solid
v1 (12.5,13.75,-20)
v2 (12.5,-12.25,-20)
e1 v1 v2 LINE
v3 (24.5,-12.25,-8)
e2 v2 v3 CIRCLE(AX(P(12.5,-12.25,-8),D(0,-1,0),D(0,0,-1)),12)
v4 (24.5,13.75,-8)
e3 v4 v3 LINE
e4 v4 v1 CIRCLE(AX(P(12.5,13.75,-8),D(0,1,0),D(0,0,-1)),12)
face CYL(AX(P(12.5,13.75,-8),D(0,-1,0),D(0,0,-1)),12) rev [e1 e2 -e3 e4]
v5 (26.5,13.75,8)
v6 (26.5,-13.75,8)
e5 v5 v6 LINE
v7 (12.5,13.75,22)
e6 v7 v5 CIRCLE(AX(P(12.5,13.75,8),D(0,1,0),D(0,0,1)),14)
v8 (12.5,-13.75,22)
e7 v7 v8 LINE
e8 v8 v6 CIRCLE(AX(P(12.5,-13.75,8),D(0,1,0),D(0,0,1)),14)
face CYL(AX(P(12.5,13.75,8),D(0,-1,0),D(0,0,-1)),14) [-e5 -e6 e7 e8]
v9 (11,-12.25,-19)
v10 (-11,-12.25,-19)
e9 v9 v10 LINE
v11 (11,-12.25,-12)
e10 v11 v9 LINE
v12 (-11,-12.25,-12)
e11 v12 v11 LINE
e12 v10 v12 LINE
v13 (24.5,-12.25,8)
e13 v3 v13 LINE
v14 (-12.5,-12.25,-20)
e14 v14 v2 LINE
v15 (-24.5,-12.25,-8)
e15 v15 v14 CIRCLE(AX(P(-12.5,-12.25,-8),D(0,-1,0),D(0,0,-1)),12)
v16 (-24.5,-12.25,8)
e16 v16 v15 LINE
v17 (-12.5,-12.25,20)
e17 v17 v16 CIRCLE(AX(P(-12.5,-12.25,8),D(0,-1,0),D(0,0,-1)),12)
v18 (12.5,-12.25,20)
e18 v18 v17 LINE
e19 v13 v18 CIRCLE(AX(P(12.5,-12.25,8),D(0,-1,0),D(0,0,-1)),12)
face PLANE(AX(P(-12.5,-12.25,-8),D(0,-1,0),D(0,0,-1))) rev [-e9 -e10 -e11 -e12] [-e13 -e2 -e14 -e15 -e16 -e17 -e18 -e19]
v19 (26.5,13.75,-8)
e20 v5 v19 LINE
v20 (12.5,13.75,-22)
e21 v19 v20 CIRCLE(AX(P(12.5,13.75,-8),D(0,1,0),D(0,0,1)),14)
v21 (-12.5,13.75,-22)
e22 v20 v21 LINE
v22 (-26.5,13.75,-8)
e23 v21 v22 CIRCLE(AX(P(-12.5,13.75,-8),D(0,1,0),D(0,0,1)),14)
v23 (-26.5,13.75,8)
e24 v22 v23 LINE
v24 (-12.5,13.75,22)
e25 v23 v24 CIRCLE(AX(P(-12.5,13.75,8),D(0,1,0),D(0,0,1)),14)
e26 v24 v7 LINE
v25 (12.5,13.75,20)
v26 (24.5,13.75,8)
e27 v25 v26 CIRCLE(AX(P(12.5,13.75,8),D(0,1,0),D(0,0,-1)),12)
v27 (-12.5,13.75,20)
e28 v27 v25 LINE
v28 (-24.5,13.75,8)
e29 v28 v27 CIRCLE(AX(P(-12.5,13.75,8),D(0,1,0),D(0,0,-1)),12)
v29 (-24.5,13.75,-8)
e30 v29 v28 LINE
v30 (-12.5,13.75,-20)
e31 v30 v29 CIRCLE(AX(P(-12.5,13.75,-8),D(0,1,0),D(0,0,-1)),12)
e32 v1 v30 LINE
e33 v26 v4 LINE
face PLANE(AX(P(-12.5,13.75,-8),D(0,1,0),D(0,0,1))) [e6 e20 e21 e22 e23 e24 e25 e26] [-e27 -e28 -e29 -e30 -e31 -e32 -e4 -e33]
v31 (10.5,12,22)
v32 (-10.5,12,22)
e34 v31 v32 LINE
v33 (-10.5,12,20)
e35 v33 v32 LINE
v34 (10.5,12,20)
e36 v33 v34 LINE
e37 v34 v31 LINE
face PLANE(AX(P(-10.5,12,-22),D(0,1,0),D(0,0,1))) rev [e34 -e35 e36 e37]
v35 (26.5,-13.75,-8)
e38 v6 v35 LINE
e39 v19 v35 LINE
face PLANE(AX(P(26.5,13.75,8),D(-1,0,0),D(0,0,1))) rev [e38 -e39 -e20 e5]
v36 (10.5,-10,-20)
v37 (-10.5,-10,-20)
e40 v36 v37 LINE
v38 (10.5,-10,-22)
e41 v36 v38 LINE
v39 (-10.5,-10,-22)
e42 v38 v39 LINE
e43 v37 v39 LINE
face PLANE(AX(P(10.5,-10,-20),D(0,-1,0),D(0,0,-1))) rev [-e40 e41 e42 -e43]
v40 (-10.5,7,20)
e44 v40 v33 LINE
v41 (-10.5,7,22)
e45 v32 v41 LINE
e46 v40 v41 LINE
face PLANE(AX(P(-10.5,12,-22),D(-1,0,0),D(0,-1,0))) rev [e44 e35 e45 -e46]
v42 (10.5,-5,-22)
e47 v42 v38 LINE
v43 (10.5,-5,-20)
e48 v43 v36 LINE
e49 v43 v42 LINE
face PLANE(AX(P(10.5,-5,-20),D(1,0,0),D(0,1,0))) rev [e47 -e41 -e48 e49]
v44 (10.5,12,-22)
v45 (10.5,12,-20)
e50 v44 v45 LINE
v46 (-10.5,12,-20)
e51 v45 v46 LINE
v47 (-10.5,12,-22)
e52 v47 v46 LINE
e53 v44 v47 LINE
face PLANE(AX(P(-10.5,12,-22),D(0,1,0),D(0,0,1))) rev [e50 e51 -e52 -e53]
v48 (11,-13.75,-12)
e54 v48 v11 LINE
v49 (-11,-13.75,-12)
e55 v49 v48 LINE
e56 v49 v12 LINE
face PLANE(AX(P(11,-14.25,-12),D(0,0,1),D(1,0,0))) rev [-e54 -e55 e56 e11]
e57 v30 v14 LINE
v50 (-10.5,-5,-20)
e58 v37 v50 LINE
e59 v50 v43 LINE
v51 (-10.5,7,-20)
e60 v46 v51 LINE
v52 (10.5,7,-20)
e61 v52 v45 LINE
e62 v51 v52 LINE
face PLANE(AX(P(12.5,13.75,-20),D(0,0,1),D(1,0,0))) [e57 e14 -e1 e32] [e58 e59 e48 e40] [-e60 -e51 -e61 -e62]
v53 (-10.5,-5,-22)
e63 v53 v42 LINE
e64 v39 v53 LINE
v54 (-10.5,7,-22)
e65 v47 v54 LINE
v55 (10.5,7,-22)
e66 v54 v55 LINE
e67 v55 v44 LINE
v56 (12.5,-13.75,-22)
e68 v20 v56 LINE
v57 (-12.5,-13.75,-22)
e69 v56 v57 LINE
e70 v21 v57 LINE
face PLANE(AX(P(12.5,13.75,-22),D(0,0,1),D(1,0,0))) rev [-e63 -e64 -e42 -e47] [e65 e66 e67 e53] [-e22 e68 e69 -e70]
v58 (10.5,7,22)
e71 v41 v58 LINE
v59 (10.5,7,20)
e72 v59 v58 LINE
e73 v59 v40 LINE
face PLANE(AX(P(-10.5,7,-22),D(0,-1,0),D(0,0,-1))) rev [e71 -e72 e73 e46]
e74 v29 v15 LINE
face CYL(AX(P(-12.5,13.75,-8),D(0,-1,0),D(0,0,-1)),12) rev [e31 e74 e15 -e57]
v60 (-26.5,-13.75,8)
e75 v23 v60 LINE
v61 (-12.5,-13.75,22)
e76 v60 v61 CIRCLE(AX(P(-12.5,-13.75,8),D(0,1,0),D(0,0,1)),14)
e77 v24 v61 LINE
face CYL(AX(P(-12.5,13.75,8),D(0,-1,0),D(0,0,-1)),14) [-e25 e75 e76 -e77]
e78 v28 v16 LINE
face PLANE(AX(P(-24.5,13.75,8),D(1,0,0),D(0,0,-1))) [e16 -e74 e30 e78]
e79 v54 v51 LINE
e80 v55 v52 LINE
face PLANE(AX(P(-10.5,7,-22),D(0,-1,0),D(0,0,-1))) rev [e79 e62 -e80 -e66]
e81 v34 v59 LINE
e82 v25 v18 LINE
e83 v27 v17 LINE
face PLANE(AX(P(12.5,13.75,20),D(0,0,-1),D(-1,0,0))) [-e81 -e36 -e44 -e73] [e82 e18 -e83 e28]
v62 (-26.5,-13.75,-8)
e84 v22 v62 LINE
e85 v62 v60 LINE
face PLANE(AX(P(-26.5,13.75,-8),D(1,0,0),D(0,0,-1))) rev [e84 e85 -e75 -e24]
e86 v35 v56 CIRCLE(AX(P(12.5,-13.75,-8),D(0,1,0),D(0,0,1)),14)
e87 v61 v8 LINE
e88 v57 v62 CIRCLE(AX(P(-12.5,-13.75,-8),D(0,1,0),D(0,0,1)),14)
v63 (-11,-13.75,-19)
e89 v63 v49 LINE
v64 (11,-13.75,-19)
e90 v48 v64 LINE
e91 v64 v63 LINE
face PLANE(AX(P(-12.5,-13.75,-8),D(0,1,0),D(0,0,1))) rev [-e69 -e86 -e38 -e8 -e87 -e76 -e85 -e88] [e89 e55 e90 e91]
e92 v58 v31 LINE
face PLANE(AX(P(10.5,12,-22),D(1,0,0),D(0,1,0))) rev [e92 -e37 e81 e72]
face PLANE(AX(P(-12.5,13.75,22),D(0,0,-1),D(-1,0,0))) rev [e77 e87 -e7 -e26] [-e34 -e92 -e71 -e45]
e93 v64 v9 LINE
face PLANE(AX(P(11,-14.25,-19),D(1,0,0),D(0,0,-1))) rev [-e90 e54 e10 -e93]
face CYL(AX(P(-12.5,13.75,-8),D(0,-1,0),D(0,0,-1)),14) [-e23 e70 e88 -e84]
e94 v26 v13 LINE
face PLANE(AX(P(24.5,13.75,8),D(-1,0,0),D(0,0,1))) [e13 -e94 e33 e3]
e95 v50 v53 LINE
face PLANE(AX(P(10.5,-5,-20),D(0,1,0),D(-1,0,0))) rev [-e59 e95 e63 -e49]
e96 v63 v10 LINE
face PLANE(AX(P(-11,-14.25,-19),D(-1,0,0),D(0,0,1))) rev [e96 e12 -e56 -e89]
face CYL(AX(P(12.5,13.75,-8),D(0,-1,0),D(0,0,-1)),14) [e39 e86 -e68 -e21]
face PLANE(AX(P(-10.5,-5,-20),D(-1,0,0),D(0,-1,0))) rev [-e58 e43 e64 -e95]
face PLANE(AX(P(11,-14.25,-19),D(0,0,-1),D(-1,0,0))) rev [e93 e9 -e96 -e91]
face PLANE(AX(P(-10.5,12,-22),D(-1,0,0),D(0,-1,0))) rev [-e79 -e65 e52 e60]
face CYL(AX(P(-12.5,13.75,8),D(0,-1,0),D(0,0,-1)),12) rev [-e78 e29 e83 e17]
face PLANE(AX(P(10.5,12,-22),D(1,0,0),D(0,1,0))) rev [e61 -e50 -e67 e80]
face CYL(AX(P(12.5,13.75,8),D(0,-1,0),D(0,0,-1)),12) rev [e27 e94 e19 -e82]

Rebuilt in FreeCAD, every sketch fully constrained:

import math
import FreeCAD as App
import Part
import Sketcher
from FreeCAD import Vector
Q = App.Units.Quantity

doc = App.newDocument("Part")
body = doc.addObject("PartDesign::Body", "Body")

sketch1 = doc.addObject("Sketcher::SketchObject", "Sketch")
body.addObject(sketch1)
sketch1.AttachmentSupport = (doc.XZ_Plane, [""])
sketch1.MapMode = "FlatFace"
sketch1.addGeometry(Part.LineSegment(Vector(-26, -8, 0), Vector(-26, 8, 0)), False)
sketch1.addGeometry(Part.ArcOfCircle(Part.Circle(Vector(-13, 8, 0), Vector(0, 0, 1), 14), math.radians(90), math.radians(180)), False)
sketch1.addGeometry(Part.LineSegment(Vector(-12, 22, 0), Vector(12, 22, 0)), False)
sketch1.addGeometry(Part.ArcOfCircle(Part.Circle(Vector(13, 8, 0), Vector(0, 0, 1), 14), math.radians(0), math.radians(90)), False)
sketch1.addGeometry(Part.LineSegment(Vector(26, 8, 0), Vector(26, -8, 0)), False)
sketch1.addGeometry(Part.ArcOfCircle(Part.Circle(Vector(13, -8, 0), Vector(0, 0, 1), 14), math.radians(-90), math.radians(0)), False)
sketch1.addGeometry(Part.LineSegment(Vector(12, -22, 0), Vector(-12, -22, 0)), False)
sketch1.addGeometry(Part.ArcOfCircle(Part.Circle(Vector(-13, -8, 0), Vector(0, 0, 1), 14), math.radians(180), math.radians(270)), False)
sketch1.addGeometry(Part.ArcOfCircle(Part.Circle(Vector(12, 8, 0), Vector(0, 0, 1), 12), math.radians(0), math.radians(90)), False)
sketch1.addGeometry(Part.LineSegment(Vector(12, 20, 0), Vector(-12, 20, 0)), False)
sketch1.addGeometry(Part.ArcOfCircle(Part.Circle(Vector(-12, 8, 0), Vector(0, 0, 1), 12), math.radians(90), math.radians(180)), False)
sketch1.addGeometry(Part.LineSegment(Vector(-24, 8, 0), Vector(-24, -8, 0)), False)
sketch1.addGeometry(Part.ArcOfCircle(Part.Circle(Vector(-12, -8, 0), Vector(0, 0, 1), 12), math.radians(-180), math.radians(-90)), False)
sketch1.addGeometry(Part.LineSegment(Vector(-12, -20, 0), Vector(12, -20, 0)), False)
sketch1.addGeometry(Part.ArcOfCircle(Part.Circle(Vector(12, -8, 0), Vector(0, 0, 1), 12), math.radians(-90), math.radians(0)), False)
sketch1.addGeometry(Part.LineSegment(Vector(24, -8, 0), Vector(24, 8, 0)), False)
sketch1.addConstraint(Sketcher.Constraint("Tangent", 0, 2, 1, 2))
sketch1.addConstraint(Sketcher.Constraint("Tangent", 1, 1, 2, 1))
sketch1.addConstraint(Sketcher.Constraint("Tangent", 2, 2, 3, 2))
sketch1.addConstraint(Sketcher.Constraint("Tangent", 3, 1, 4, 1))
sketch1.addConstraint(Sketcher.Constraint("Tangent", 4, 2, 5, 2))
sketch1.addConstraint(Sketcher.Constraint("Tangent", 5, 1, 6, 1))
sketch1.addConstraint(Sketcher.Constraint("Tangent", 6, 2, 7, 2))
sketch1.addConstraint(Sketcher.Constraint("Tangent", 7, 1, 0, 1))
sketch1.addConstraint(Sketcher.Constraint("Tangent", 8, 2, 9, 1))
sketch1.addConstraint(Sketcher.Constraint("Tangent", 9, 2, 10, 1))
sketch1.addConstraint(Sketcher.Constraint("Tangent", 10, 2, 11, 1))
sketch1.addConstraint(Sketcher.Constraint("Tangent", 11, 2, 12, 1))
sketch1.addConstraint(Sketcher.Constraint("Tangent", 12, 2, 13, 1))
sketch1.addConstraint(Sketcher.Constraint("Tangent", 13, 2, 14, 1))
sketch1.addConstraint(Sketcher.Constraint("Tangent", 14, 2, 15, 1))
sketch1.addConstraint(Sketcher.Constraint("Tangent", 15, 2, 8, 1))
sketch1.addConstraint(Sketcher.Constraint("Vertical", 0))
sketch1.addConstraint(Sketcher.Constraint("Horizontal", 2))
sketch1.addConstraint(Sketcher.Constraint("Vertical", 4))
sketch1.addConstraint(Sketcher.Constraint("Horizontal", 6))
sketch1.addConstraint(Sketcher.Constraint("Horizontal", 9))
sketch1.addConstraint(Sketcher.Constraint("Vertical", 11))
sketch1.addConstraint(Sketcher.Constraint("Horizontal", 13))
sketch1.addConstraint(Sketcher.Constraint("Vertical", 15))
sketch1.addConstraint(Sketcher.Constraint("Coincident", 8, 3, 3, 3))
sketch1.addConstraint(Sketcher.Constraint("Coincident", 10, 3, 1, 3))
sketch1.addConstraint(Sketcher.Constraint("Coincident", 12, 3, 7, 3))
sketch1.addConstraint(Sketcher.Constraint("Equal", 1, 3))
sketch1.addConstraint(Sketcher.Constraint("Equal", 3, 5))
sketch1.addConstraint(Sketcher.Constraint("Equal", 5, 7))
sketch1.addConstraint(Sketcher.Constraint("Equal", 12, 14))
sketch1.addConstraint(Sketcher.Constraint("Symmetric", 1, 3, 5, 3, -1, 1))
sketch1.addConstraint(Sketcher.Constraint("Radius", 1, Q("14 mm")))
sketch1.addConstraint(Sketcher.Constraint("Radius", 8, Q("12 mm")))
sketch1.addConstraint(Sketcher.Constraint("DistanceX", 2, 1, 2, 2, Q("25 mm")))
sketch1.addConstraint(Sketcher.Constraint("DistanceY", 0, 1, 0, 2, Q("16 mm")))
pad1 = doc.addObject("PartDesign::Pad", "Pad")
body.addObject(pad1)
pad1.Profile = sketch1
pad1.Length = 27.5
pad1.Midplane = True

sketch2 = doc.addObject("Sketcher::SketchObject", "Sketch001")
body.addObject(sketch2)
sketch2.AttachmentSupport = (doc.XY_Plane, [""])
sketch2.MapMode = "FlatFace"
sketch2.AttachmentOffset = App.Placement(Vector(0, 0, -20), App.Rotation())
sketch2.addGeometry(Part.LineSegment(Vector(-10, 12, 0), Vector(-10, 7, 0)), False)
sketch2.addGeometry(Part.LineSegment(Vector(-10, 7, 0), Vector(10, 7, 0)), False)
sketch2.addGeometry(Part.LineSegment(Vector(10, 7, 0), Vector(10, 12, 0)), False)
sketch2.addGeometry(Part.LineSegment(Vector(10, 12, 0), Vector(-10, 12, 0)), False)
sketch2.addConstraint(Sketcher.Constraint("Coincident", 0, 2, 1, 1))
sketch2.addConstraint(Sketcher.Constraint("Coincident", 1, 2, 2, 1))
sketch2.addConstraint(Sketcher.Constraint("Coincident", 2, 2, 3, 1))
sketch2.addConstraint(Sketcher.Constraint("Coincident", 3, 2, 0, 1))
sketch2.addConstraint(Sketcher.Constraint("Vertical", 0))
sketch2.addConstraint(Sketcher.Constraint("Horizontal", 1))
sketch2.addConstraint(Sketcher.Constraint("Vertical", 2))
sketch2.addConstraint(Sketcher.Constraint("Horizontal", 3))
sketch2.addConstraint(Sketcher.Constraint("DistanceX", 1, 1, 1, 2, Q("21 mm")))
sketch2.addConstraint(Sketcher.Constraint("DistanceY", 0, 2, 0, 1, Q("5 mm")))
sketch2.addConstraint(Sketcher.Constraint("DistanceY", -1, 1, 0, 2, Q("7 mm")))
sketch2.addConstraint(Sketcher.Constraint("DistanceX", 0, 2, -1, 1, Q("10.5 mm")))
pocket1 = doc.addObject("PartDesign::Pocket", "Pocket")
body.addObject(pocket1)
pocket1.Profile = sketch2
pocket1.Type = "ThroughAll"
pocket1.Midplane = True

sketch3 = doc.addObject("Sketcher::SketchObject", "Sketch002")
body.addObject(sketch3)
sketch3.AttachmentSupport = (doc.XZ_Plane, [""])
sketch3.MapMode = "FlatFace"
sketch3.AttachmentOffset = App.Placement(Vector(0, 0, 12.25), App.Rotation())
sketch3.addGeometry(Part.LineSegment(Vector(-12, -22, 0), Vector(12, -22, 0)), False)
sketch3.addGeometry(Part.ArcOfCircle(Part.Circle(Vector(13, -8, 0), Vector(0, 0, 1), 14), math.radians(-90), math.radians(0)), False)
sketch3.addGeometry(Part.LineSegment(Vector(26, -8, 0), Vector(26, 8, 0)), False)
sketch3.addGeometry(Part.ArcOfCircle(Part.Circle(Vector(13, 8, 0), Vector(0, 0, 1), 14), math.radians(0), math.radians(90)), False)
sketch3.addGeometry(Part.LineSegment(Vector(12, 22, 0), Vector(-12, 22, 0)), False)
sketch3.addGeometry(Part.ArcOfCircle(Part.Circle(Vector(-13, 8, 0), Vector(0, 0, 1), 14), math.radians(90), math.radians(180)), False)
sketch3.addGeometry(Part.LineSegment(Vector(-26, 8, 0), Vector(-26, -8, 0)), False)
sketch3.addGeometry(Part.ArcOfCircle(Part.Circle(Vector(-13, -8, 0), Vector(0, 0, 1), 14), math.radians(180), math.radians(270)), False)
sketch3.addConstraint(Sketcher.Constraint("Tangent", 0, 2, 1, 1))
sketch3.addConstraint(Sketcher.Constraint("Tangent", 1, 2, 2, 1))
sketch3.addConstraint(Sketcher.Constraint("Tangent", 2, 2, 3, 1))
sketch3.addConstraint(Sketcher.Constraint("Tangent", 3, 2, 4, 1))
sketch3.addConstraint(Sketcher.Constraint("Tangent", 4, 2, 5, 1))
sketch3.addConstraint(Sketcher.Constraint("Tangent", 5, 2, 6, 1))
sketch3.addConstraint(Sketcher.Constraint("Tangent", 6, 2, 7, 1))
sketch3.addConstraint(Sketcher.Constraint("Tangent", 7, 2, 0, 1))
sketch3.addConstraint(Sketcher.Constraint("Horizontal", 0))
sketch3.addConstraint(Sketcher.Constraint("Vertical", 2))
sketch3.addConstraint(Sketcher.Constraint("Horizontal", 4))
sketch3.addConstraint(Sketcher.Constraint("Vertical", 6))
sketch3.addConstraint(Sketcher.Constraint("Equal", 1, 3))
sketch3.addConstraint(Sketcher.Constraint("Equal", 3, 5))
sketch3.addConstraint(Sketcher.Constraint("Equal", 5, 7))
sketch3.addConstraint(Sketcher.Constraint("Symmetric", 1, 3, 5, 3, -1, 1))
sketch3.addConstraint(Sketcher.Constraint("Radius", 1, Q("14 mm")))
sketch3.addConstraint(Sketcher.Constraint("DistanceX", 0, 1, 0, 2, Q("25 mm")))
sketch3.addConstraint(Sketcher.Constraint("DistanceY", 2, 1, 2, 2, Q("16 mm")))
pad2 = doc.addObject("PartDesign::Pad", "Pad001")
body.addObject(pad2)
pad2.Profile = sketch3
pad2.Length = 1.5

sketch4 = doc.addObject("Sketcher::SketchObject", "Sketch003")
body.addObject(sketch4)
sketch4.AttachmentSupport = (doc.XY_Plane, [""])
sketch4.MapMode = "FlatFace"
sketch4.AttachmentOffset = App.Placement(Vector(0, 0, -22), App.Rotation())
sketch4.addGeometry(Part.LineSegment(Vector(10, -5, 0), Vector(10, -10, 0)), False)
sketch4.addGeometry(Part.LineSegment(Vector(10, -10, 0), Vector(-10, -10, 0)), False)
sketch4.addGeometry(Part.LineSegment(Vector(-10, -10, 0), Vector(-10, -5, 0)), False)
sketch4.addGeometry(Part.LineSegment(Vector(-10, -5, 0), Vector(10, -5, 0)), False)
sketch4.addConstraint(Sketcher.Constraint("Coincident", 0, 2, 1, 1))
sketch4.addConstraint(Sketcher.Constraint("Coincident", 1, 2, 2, 1))
sketch4.addConstraint(Sketcher.Constraint("Coincident", 2, 2, 3, 1))
sketch4.addConstraint(Sketcher.Constraint("Coincident", 3, 2, 0, 1))
sketch4.addConstraint(Sketcher.Constraint("Vertical", 0))
sketch4.addConstraint(Sketcher.Constraint("Horizontal", 1))
sketch4.addConstraint(Sketcher.Constraint("Vertical", 2))
sketch4.addConstraint(Sketcher.Constraint("Horizontal", 3))
sketch4.addConstraint(Sketcher.Constraint("DistanceX", 1, 2, 1, 1, Q("21 mm")))
sketch4.addConstraint(Sketcher.Constraint("DistanceY", 0, 2, 0, 1, Q("5 mm")))
sketch4.addConstraint(Sketcher.Constraint("DistanceY", 0, 2, -1, 1, Q("10 mm")))
sketch4.addConstraint(Sketcher.Constraint("DistanceX", -1, 1, 0, 2, Q("10.5 mm")))
pocket2 = doc.addObject("PartDesign::Pocket", "Pocket001")
body.addObject(pocket2)
pocket2.Profile = sketch4
pocket2.Length = 2
pocket2.Reversed = True

sketch5 = doc.addObject("Sketcher::SketchObject", "Sketch004")
body.addObject(sketch5)
sketch5.AttachmentSupport = (doc.XZ_Plane, [""])
sketch5.MapMode = "FlatFace"
sketch5.AttachmentOffset = App.Placement(Vector(0, 0, 12.25), App.Rotation())
sketch5.addGeometry(Part.LineSegment(Vector(11, -12, 0), Vector(11, -19, 0)), False)
sketch5.addGeometry(Part.LineSegment(Vector(11, -19, 0), Vector(-11, -19, 0)), False)
sketch5.addGeometry(Part.LineSegment(Vector(-11, -19, 0), Vector(-11, -12, 0)), False)
sketch5.addGeometry(Part.LineSegment(Vector(-11, -12, 0), Vector(11, -12, 0)), False)
sketch5.addConstraint(Sketcher.Constraint("Coincident", 0, 2, 1, 1))
sketch5.addConstraint(Sketcher.Constraint("Coincident", 1, 2, 2, 1))
sketch5.addConstraint(Sketcher.Constraint("Coincident", 2, 2, 3, 1))
sketch5.addConstraint(Sketcher.Constraint("Coincident", 3, 2, 0, 1))
sketch5.addConstraint(Sketcher.Constraint("Vertical", 0))
sketch5.addConstraint(Sketcher.Constraint("Horizontal", 1))
sketch5.addConstraint(Sketcher.Constraint("Vertical", 2))
sketch5.addConstraint(Sketcher.Constraint("Horizontal", 3))
sketch5.addConstraint(Sketcher.Constraint("DistanceX", 1, 2, 1, 1, Q("22 mm")))
sketch5.addConstraint(Sketcher.Constraint("DistanceY", 0, 2, 0, 1, Q("7 mm")))
sketch5.addConstraint(Sketcher.Constraint("DistanceX", -1, 1, 0, 2, Q("11 mm")))
sketch5.addConstraint(Sketcher.Constraint("DistanceY", 0, 2, -1, 1, Q("19 mm")))
pocket3 = doc.addObject("PartDesign::Pocket", "Pocket002")
body.addObject(pocket3)
pocket3.Profile = sketch5
pocket3.Length = 2
pocket3.Reversed = True

doc.recompute()
